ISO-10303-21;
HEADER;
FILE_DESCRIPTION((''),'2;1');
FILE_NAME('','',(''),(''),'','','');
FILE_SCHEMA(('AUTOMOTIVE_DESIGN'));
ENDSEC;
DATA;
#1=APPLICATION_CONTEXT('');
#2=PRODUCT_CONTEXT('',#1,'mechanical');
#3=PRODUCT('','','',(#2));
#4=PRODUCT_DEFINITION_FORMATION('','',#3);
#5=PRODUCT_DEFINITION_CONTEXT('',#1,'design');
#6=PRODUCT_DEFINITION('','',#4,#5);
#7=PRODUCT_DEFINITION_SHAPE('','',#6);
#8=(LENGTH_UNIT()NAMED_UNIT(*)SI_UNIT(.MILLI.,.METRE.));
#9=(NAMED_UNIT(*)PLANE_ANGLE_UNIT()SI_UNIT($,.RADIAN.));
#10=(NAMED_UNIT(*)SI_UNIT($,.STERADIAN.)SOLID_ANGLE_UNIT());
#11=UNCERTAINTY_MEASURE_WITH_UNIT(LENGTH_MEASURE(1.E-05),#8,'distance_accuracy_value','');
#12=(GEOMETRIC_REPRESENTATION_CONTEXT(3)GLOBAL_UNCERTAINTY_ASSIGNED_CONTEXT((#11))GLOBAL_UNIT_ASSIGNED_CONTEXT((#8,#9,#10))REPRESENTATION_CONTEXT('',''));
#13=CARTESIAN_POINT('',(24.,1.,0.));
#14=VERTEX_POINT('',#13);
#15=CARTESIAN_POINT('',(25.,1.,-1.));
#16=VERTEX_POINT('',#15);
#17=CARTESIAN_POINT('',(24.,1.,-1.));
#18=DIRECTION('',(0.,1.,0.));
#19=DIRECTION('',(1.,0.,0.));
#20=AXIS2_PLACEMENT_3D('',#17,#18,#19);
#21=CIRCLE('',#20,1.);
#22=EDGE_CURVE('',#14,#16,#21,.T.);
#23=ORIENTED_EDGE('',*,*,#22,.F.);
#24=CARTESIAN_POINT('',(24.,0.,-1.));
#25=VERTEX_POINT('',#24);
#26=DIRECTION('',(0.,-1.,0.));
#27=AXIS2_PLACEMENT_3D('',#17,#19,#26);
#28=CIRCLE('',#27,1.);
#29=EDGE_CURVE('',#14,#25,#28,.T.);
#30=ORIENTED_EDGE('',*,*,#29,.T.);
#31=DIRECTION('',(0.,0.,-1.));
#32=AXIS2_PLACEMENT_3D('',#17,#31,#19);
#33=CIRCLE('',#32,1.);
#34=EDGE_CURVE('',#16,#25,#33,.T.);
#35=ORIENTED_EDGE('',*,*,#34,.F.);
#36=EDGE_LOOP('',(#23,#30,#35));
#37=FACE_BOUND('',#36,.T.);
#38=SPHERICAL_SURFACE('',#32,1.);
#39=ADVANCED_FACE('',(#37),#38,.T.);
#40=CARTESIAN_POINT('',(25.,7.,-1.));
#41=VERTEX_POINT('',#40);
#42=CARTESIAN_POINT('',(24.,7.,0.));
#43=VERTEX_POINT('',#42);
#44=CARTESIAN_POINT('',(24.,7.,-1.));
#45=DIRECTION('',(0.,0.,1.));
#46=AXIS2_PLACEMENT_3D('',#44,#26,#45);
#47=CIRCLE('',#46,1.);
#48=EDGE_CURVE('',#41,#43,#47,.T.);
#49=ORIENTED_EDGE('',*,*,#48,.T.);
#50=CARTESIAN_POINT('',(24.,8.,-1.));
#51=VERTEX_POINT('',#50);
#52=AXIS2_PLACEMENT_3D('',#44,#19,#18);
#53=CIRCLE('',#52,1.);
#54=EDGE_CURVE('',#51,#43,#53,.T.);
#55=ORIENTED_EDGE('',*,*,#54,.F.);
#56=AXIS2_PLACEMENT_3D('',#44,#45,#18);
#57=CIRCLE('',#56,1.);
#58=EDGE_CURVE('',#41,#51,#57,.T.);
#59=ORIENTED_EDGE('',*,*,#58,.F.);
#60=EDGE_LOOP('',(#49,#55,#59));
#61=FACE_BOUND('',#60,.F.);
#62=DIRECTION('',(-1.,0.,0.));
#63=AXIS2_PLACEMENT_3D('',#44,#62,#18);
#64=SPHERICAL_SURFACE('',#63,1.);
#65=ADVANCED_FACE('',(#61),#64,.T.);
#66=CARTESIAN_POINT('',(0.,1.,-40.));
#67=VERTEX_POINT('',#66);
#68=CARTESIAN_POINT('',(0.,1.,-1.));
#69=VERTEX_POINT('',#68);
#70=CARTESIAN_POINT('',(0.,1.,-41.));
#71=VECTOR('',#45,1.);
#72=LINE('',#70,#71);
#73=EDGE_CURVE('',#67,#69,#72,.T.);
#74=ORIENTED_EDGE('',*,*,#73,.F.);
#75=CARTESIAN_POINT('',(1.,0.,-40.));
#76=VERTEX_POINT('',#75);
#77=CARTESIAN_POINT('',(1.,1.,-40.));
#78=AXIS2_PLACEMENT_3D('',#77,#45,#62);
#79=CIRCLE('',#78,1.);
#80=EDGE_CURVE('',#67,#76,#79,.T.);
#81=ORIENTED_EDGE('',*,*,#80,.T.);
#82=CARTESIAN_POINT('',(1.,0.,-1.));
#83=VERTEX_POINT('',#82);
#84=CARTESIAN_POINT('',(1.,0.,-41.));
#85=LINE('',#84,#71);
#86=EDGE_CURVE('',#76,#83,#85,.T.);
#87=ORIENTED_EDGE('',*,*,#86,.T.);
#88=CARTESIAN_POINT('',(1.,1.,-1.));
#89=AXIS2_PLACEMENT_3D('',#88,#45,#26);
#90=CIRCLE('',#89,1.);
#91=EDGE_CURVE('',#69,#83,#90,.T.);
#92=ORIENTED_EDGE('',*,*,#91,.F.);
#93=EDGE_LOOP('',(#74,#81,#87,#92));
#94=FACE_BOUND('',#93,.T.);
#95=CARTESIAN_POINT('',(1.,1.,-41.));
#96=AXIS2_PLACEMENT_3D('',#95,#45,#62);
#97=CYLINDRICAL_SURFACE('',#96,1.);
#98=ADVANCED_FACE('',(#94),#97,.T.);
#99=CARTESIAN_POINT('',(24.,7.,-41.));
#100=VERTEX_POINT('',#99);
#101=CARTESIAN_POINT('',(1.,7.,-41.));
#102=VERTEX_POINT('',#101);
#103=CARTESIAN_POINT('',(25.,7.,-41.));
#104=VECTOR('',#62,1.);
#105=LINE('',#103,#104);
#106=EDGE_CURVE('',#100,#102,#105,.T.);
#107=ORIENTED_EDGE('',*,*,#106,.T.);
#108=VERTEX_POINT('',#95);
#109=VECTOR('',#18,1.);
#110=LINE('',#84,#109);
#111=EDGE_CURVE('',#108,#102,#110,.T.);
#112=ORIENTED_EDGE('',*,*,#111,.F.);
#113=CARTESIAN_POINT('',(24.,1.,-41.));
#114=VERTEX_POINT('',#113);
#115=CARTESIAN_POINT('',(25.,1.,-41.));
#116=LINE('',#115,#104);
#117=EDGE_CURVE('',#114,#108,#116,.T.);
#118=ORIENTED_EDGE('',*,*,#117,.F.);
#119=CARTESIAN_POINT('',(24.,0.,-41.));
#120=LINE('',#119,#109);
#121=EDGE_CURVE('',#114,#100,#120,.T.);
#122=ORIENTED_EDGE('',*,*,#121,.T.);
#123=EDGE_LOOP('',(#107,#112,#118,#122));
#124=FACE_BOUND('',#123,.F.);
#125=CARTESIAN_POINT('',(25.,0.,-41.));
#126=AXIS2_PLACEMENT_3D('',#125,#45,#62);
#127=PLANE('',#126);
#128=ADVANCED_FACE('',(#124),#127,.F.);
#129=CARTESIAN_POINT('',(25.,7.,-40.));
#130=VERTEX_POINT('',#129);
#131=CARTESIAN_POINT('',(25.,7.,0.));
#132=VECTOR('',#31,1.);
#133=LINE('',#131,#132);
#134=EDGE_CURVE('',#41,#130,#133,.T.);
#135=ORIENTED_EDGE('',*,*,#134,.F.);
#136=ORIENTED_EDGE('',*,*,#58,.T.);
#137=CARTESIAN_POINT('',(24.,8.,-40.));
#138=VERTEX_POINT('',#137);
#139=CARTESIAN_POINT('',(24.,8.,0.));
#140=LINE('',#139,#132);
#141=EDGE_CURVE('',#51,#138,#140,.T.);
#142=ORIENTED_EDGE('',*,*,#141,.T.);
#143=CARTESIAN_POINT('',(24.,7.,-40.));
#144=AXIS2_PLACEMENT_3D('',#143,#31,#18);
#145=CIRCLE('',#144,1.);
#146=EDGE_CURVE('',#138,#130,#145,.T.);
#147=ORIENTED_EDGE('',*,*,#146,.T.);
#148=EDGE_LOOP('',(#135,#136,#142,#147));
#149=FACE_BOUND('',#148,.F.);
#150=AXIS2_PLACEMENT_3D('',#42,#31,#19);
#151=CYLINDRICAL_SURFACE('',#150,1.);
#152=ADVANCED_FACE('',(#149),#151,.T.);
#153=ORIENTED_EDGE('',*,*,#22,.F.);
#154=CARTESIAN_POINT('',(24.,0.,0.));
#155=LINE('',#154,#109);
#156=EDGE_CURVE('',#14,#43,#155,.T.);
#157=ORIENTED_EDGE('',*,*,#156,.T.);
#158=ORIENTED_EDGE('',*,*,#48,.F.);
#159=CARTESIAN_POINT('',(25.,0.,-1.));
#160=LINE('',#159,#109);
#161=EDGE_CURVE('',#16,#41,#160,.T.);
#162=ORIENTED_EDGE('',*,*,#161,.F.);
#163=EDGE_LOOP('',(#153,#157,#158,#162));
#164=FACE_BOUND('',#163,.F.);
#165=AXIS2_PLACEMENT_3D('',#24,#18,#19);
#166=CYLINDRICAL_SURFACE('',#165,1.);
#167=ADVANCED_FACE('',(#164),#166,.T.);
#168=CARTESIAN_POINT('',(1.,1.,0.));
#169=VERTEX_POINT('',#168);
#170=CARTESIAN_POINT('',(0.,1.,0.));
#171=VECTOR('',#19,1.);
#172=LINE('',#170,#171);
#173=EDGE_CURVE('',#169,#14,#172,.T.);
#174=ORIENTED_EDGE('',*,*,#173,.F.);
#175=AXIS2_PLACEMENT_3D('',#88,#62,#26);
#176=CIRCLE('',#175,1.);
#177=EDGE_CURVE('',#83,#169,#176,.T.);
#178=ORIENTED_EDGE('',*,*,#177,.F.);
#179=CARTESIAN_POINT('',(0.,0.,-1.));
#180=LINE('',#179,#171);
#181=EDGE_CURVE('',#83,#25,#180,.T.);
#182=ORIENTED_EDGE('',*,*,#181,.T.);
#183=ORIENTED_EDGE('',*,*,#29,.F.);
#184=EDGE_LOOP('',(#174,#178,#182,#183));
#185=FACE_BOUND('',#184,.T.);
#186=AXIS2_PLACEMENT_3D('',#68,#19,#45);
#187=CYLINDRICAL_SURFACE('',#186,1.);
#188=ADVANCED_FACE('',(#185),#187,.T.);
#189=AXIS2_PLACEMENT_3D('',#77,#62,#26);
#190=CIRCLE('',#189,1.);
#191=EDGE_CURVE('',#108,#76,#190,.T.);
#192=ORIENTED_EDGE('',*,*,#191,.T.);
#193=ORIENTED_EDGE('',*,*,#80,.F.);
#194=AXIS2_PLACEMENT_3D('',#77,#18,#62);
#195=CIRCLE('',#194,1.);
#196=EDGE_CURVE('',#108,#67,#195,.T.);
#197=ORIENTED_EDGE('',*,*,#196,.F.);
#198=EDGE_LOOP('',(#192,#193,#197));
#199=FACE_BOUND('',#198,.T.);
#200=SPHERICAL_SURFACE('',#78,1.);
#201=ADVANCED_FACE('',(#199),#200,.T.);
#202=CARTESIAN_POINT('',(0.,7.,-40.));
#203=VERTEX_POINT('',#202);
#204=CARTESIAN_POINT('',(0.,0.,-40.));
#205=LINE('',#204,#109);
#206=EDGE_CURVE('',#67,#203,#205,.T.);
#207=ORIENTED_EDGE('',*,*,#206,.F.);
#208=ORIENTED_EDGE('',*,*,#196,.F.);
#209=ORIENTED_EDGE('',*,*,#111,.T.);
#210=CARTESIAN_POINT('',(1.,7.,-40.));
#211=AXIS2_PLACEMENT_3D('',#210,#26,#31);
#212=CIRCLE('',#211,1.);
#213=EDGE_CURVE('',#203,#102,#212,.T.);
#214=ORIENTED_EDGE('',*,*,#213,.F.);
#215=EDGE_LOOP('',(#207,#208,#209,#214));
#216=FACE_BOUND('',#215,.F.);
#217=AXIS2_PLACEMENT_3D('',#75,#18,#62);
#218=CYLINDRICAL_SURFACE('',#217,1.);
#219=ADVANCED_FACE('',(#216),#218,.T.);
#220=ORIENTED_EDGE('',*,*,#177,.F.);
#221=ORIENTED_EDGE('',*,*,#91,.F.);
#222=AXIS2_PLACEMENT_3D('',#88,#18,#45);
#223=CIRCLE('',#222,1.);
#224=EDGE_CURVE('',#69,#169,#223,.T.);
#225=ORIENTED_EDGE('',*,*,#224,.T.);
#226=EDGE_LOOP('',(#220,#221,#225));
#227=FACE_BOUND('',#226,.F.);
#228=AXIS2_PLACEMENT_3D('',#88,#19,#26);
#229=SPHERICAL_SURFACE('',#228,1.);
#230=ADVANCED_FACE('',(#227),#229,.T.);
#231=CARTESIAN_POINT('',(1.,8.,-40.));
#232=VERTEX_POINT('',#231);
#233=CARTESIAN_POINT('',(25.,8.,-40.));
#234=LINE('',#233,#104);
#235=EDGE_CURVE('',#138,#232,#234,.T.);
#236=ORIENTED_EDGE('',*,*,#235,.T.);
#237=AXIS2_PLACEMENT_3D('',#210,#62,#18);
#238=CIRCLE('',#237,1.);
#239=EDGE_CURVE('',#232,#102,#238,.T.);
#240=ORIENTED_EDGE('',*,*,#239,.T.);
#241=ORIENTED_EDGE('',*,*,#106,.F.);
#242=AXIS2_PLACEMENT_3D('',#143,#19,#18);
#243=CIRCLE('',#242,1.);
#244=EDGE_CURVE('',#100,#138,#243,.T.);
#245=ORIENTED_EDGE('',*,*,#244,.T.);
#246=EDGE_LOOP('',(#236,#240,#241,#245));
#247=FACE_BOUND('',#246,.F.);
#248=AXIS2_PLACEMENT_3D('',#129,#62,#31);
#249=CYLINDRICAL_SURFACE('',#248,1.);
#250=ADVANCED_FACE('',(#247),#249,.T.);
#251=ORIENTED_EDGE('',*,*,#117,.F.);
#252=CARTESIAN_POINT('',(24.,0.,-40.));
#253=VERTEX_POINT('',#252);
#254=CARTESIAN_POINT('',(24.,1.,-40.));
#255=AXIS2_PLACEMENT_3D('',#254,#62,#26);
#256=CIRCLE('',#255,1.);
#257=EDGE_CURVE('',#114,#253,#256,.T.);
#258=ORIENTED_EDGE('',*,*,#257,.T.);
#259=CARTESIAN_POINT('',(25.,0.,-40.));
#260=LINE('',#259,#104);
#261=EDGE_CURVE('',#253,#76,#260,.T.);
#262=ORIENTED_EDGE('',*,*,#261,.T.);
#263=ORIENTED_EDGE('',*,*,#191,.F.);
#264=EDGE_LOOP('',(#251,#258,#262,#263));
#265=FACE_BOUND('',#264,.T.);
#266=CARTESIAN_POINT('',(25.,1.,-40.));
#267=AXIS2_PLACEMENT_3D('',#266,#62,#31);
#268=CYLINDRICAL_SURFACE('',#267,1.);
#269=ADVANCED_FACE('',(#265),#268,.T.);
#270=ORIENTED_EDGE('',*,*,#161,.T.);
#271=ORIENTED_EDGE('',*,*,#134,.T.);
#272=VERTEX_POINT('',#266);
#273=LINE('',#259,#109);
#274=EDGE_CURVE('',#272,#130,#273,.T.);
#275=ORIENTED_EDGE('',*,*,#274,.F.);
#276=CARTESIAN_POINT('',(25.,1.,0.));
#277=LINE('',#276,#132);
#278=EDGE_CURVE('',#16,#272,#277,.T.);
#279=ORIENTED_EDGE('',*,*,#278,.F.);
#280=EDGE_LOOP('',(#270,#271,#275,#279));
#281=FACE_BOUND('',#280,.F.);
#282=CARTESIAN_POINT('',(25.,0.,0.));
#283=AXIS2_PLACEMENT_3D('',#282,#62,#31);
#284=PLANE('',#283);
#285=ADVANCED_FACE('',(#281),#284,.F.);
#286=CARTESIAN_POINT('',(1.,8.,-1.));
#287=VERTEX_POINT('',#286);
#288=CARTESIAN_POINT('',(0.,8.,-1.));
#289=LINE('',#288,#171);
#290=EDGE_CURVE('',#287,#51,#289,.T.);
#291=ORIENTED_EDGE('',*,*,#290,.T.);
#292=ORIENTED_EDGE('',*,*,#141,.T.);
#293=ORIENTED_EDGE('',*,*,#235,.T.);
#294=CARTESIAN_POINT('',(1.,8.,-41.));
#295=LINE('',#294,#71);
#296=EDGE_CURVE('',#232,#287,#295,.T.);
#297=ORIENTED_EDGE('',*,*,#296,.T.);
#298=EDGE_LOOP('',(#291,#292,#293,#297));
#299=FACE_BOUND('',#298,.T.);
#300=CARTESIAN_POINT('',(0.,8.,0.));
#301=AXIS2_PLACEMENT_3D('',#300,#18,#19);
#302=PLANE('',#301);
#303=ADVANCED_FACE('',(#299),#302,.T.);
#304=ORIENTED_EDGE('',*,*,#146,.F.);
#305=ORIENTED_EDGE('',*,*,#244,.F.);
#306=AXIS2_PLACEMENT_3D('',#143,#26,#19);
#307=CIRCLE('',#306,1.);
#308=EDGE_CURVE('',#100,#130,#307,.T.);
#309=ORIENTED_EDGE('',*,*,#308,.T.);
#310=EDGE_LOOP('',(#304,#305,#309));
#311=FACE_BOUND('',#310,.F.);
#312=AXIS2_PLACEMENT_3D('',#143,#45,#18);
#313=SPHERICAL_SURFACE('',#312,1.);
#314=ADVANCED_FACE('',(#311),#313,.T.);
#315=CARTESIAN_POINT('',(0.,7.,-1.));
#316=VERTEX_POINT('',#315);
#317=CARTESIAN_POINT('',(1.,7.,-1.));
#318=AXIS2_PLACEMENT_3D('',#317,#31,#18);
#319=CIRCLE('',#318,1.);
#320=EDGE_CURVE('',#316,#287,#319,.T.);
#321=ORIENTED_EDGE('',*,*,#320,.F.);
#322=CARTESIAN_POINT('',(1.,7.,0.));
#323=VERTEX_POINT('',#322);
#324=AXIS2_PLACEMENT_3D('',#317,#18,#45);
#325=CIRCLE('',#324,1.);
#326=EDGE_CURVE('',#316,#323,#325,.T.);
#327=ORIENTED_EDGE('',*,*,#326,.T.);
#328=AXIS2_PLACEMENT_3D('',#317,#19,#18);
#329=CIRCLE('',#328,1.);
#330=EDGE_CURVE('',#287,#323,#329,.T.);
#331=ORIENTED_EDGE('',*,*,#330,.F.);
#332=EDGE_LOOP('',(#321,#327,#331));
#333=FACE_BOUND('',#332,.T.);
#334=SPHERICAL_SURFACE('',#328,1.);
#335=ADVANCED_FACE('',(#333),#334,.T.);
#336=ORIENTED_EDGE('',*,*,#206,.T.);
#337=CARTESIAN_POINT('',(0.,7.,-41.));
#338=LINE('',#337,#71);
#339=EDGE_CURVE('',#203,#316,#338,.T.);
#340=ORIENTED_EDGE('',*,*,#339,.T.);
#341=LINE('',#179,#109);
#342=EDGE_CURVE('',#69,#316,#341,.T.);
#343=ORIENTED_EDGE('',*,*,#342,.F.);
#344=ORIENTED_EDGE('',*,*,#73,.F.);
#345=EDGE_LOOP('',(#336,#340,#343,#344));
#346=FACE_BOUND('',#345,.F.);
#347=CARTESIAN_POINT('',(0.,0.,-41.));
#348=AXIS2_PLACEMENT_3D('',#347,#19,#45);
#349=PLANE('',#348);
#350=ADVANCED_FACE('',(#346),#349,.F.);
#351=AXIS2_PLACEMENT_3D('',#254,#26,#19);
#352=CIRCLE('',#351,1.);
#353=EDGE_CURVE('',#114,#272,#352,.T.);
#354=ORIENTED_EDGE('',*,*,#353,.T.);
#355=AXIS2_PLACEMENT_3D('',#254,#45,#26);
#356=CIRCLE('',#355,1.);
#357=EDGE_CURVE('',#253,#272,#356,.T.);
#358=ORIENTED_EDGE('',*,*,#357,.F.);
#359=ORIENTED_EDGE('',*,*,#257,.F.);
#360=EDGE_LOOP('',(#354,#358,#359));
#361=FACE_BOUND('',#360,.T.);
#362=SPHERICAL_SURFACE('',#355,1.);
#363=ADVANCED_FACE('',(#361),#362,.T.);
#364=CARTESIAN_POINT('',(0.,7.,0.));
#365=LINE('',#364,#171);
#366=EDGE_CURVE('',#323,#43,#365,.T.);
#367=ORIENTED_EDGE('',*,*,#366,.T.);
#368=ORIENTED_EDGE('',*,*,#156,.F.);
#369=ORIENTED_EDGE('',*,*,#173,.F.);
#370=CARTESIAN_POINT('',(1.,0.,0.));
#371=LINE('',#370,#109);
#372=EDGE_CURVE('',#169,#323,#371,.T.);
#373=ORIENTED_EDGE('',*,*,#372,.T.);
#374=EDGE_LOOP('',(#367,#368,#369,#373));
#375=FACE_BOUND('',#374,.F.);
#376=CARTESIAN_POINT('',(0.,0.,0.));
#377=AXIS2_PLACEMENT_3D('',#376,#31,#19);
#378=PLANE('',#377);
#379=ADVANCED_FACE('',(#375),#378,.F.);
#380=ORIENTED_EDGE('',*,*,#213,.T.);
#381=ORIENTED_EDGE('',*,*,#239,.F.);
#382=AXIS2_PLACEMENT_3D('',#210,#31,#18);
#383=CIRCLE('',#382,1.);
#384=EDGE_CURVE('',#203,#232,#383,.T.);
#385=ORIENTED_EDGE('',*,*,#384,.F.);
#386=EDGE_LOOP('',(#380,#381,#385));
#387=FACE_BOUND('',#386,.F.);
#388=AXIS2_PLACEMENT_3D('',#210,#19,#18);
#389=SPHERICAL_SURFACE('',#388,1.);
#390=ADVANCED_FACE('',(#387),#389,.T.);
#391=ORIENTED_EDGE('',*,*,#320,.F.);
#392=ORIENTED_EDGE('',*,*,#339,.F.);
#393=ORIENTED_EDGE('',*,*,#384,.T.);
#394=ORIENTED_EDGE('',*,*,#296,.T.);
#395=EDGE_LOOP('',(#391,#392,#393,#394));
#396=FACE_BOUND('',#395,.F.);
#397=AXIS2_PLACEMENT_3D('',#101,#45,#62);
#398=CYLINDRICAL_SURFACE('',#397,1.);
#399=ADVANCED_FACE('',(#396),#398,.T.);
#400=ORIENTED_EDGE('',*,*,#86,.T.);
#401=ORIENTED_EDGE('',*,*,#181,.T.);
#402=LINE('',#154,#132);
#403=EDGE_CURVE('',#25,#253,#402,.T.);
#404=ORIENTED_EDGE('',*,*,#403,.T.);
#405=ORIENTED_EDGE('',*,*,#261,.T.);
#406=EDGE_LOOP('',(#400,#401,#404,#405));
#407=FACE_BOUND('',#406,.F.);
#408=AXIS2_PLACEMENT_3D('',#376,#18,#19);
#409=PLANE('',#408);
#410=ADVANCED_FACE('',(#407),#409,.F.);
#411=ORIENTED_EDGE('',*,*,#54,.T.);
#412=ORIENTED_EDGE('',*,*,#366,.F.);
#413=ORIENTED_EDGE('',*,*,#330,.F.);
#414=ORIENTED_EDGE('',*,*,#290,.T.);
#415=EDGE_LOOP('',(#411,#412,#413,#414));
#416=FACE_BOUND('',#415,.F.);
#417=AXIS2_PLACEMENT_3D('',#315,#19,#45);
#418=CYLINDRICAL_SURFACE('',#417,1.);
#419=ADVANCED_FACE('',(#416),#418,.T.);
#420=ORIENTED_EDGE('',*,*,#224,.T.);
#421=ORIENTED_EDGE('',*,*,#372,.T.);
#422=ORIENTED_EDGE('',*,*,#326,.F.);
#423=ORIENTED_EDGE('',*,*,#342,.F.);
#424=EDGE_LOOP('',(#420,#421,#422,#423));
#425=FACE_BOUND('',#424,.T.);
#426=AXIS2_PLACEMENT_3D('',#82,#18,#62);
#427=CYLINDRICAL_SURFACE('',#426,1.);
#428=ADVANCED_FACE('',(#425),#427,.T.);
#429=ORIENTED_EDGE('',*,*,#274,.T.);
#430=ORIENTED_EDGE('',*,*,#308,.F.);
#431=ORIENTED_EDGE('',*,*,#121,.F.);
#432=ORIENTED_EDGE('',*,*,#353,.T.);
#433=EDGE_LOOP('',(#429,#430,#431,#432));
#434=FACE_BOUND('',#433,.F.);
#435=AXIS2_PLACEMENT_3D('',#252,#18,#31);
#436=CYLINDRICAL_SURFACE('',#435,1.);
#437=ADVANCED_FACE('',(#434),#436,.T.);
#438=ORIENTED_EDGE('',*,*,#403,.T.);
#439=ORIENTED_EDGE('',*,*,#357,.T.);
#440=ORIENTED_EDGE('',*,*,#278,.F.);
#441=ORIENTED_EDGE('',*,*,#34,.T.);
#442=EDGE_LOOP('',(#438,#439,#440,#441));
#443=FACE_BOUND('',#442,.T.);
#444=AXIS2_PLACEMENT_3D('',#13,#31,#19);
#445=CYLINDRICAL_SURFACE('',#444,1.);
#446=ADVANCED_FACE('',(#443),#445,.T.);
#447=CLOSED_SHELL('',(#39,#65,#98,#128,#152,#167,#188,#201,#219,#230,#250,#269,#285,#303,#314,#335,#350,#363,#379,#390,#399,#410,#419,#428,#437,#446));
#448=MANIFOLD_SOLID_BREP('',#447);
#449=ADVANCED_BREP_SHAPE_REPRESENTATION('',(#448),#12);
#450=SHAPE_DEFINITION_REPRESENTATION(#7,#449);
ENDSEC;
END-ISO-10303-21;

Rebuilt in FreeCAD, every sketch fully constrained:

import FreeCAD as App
import Part
import Sketcher
Q = App.Units.Quantity

doc = App.newDocument("Part")
body = doc.addObject("PartDesign::Body", "Body")

# Sketch on XZ plane
sketch1 = body.newObject("Sketcher::SketchObject", "Sketch")
sketch1.AttachmentSupport = (doc.getObject("XZ_Plane"), [""])
sketch1.MapMode = "FlatFace"
sketch1.addGeometry([
    Part.LineSegment(App.Vector(0, -41, 0), App.Vector(0, 0, 0)),
    Part.LineSegment(App.Vector(0, 0, 0), App.Vector(25, 0, 0)),
    Part.LineSegment(App.Vector(25, 0, 0), App.Vector(25, -41, 0)),
    Part.LineSegment(App.Vector(25, -41, 0), App.Vector(0, -41, 0)),
], False)
sketch1.addConstraint([
    Sketcher.Constraint("Coincident", 0, 2, 1, 1),
    Sketcher.Constraint("Coincident", 1, 2, 2, 1),
    Sketcher.Constraint("Coincident", 2, 2, 3, 1),
    Sketcher.Constraint("Coincident", 3, 2, 0, 1),
    Sketcher.Constraint("Vertical", 0),
    Sketcher.Constraint("Horizontal", 1),
    Sketcher.Constraint("Vertical", 2),
    Sketcher.Constraint("Horizontal", 3),
    Sketcher.Constraint("Coincident", 0, 2, -1, 1),
    Sketcher.Constraint("DistanceX", 1, 1, 1, 2, Q("25 mm")),
    Sketcher.Constraint("DistanceY", 0, 1, 0, 2, Q("41 mm")),
])
pad1 = body.newObject("PartDesign::Pad", "Pad")
pad1.Profile = sketch1
pad1.Length = 8
pad1.Reversed = True
doc.recompute()

fillet = body.newObject("PartDesign::Fillet", "Fillet")
fillet.Base = (pad1, ["Edge1"])
fillet.UseAllEdges = True
fillet.Radius = 1

doc.recompute()
